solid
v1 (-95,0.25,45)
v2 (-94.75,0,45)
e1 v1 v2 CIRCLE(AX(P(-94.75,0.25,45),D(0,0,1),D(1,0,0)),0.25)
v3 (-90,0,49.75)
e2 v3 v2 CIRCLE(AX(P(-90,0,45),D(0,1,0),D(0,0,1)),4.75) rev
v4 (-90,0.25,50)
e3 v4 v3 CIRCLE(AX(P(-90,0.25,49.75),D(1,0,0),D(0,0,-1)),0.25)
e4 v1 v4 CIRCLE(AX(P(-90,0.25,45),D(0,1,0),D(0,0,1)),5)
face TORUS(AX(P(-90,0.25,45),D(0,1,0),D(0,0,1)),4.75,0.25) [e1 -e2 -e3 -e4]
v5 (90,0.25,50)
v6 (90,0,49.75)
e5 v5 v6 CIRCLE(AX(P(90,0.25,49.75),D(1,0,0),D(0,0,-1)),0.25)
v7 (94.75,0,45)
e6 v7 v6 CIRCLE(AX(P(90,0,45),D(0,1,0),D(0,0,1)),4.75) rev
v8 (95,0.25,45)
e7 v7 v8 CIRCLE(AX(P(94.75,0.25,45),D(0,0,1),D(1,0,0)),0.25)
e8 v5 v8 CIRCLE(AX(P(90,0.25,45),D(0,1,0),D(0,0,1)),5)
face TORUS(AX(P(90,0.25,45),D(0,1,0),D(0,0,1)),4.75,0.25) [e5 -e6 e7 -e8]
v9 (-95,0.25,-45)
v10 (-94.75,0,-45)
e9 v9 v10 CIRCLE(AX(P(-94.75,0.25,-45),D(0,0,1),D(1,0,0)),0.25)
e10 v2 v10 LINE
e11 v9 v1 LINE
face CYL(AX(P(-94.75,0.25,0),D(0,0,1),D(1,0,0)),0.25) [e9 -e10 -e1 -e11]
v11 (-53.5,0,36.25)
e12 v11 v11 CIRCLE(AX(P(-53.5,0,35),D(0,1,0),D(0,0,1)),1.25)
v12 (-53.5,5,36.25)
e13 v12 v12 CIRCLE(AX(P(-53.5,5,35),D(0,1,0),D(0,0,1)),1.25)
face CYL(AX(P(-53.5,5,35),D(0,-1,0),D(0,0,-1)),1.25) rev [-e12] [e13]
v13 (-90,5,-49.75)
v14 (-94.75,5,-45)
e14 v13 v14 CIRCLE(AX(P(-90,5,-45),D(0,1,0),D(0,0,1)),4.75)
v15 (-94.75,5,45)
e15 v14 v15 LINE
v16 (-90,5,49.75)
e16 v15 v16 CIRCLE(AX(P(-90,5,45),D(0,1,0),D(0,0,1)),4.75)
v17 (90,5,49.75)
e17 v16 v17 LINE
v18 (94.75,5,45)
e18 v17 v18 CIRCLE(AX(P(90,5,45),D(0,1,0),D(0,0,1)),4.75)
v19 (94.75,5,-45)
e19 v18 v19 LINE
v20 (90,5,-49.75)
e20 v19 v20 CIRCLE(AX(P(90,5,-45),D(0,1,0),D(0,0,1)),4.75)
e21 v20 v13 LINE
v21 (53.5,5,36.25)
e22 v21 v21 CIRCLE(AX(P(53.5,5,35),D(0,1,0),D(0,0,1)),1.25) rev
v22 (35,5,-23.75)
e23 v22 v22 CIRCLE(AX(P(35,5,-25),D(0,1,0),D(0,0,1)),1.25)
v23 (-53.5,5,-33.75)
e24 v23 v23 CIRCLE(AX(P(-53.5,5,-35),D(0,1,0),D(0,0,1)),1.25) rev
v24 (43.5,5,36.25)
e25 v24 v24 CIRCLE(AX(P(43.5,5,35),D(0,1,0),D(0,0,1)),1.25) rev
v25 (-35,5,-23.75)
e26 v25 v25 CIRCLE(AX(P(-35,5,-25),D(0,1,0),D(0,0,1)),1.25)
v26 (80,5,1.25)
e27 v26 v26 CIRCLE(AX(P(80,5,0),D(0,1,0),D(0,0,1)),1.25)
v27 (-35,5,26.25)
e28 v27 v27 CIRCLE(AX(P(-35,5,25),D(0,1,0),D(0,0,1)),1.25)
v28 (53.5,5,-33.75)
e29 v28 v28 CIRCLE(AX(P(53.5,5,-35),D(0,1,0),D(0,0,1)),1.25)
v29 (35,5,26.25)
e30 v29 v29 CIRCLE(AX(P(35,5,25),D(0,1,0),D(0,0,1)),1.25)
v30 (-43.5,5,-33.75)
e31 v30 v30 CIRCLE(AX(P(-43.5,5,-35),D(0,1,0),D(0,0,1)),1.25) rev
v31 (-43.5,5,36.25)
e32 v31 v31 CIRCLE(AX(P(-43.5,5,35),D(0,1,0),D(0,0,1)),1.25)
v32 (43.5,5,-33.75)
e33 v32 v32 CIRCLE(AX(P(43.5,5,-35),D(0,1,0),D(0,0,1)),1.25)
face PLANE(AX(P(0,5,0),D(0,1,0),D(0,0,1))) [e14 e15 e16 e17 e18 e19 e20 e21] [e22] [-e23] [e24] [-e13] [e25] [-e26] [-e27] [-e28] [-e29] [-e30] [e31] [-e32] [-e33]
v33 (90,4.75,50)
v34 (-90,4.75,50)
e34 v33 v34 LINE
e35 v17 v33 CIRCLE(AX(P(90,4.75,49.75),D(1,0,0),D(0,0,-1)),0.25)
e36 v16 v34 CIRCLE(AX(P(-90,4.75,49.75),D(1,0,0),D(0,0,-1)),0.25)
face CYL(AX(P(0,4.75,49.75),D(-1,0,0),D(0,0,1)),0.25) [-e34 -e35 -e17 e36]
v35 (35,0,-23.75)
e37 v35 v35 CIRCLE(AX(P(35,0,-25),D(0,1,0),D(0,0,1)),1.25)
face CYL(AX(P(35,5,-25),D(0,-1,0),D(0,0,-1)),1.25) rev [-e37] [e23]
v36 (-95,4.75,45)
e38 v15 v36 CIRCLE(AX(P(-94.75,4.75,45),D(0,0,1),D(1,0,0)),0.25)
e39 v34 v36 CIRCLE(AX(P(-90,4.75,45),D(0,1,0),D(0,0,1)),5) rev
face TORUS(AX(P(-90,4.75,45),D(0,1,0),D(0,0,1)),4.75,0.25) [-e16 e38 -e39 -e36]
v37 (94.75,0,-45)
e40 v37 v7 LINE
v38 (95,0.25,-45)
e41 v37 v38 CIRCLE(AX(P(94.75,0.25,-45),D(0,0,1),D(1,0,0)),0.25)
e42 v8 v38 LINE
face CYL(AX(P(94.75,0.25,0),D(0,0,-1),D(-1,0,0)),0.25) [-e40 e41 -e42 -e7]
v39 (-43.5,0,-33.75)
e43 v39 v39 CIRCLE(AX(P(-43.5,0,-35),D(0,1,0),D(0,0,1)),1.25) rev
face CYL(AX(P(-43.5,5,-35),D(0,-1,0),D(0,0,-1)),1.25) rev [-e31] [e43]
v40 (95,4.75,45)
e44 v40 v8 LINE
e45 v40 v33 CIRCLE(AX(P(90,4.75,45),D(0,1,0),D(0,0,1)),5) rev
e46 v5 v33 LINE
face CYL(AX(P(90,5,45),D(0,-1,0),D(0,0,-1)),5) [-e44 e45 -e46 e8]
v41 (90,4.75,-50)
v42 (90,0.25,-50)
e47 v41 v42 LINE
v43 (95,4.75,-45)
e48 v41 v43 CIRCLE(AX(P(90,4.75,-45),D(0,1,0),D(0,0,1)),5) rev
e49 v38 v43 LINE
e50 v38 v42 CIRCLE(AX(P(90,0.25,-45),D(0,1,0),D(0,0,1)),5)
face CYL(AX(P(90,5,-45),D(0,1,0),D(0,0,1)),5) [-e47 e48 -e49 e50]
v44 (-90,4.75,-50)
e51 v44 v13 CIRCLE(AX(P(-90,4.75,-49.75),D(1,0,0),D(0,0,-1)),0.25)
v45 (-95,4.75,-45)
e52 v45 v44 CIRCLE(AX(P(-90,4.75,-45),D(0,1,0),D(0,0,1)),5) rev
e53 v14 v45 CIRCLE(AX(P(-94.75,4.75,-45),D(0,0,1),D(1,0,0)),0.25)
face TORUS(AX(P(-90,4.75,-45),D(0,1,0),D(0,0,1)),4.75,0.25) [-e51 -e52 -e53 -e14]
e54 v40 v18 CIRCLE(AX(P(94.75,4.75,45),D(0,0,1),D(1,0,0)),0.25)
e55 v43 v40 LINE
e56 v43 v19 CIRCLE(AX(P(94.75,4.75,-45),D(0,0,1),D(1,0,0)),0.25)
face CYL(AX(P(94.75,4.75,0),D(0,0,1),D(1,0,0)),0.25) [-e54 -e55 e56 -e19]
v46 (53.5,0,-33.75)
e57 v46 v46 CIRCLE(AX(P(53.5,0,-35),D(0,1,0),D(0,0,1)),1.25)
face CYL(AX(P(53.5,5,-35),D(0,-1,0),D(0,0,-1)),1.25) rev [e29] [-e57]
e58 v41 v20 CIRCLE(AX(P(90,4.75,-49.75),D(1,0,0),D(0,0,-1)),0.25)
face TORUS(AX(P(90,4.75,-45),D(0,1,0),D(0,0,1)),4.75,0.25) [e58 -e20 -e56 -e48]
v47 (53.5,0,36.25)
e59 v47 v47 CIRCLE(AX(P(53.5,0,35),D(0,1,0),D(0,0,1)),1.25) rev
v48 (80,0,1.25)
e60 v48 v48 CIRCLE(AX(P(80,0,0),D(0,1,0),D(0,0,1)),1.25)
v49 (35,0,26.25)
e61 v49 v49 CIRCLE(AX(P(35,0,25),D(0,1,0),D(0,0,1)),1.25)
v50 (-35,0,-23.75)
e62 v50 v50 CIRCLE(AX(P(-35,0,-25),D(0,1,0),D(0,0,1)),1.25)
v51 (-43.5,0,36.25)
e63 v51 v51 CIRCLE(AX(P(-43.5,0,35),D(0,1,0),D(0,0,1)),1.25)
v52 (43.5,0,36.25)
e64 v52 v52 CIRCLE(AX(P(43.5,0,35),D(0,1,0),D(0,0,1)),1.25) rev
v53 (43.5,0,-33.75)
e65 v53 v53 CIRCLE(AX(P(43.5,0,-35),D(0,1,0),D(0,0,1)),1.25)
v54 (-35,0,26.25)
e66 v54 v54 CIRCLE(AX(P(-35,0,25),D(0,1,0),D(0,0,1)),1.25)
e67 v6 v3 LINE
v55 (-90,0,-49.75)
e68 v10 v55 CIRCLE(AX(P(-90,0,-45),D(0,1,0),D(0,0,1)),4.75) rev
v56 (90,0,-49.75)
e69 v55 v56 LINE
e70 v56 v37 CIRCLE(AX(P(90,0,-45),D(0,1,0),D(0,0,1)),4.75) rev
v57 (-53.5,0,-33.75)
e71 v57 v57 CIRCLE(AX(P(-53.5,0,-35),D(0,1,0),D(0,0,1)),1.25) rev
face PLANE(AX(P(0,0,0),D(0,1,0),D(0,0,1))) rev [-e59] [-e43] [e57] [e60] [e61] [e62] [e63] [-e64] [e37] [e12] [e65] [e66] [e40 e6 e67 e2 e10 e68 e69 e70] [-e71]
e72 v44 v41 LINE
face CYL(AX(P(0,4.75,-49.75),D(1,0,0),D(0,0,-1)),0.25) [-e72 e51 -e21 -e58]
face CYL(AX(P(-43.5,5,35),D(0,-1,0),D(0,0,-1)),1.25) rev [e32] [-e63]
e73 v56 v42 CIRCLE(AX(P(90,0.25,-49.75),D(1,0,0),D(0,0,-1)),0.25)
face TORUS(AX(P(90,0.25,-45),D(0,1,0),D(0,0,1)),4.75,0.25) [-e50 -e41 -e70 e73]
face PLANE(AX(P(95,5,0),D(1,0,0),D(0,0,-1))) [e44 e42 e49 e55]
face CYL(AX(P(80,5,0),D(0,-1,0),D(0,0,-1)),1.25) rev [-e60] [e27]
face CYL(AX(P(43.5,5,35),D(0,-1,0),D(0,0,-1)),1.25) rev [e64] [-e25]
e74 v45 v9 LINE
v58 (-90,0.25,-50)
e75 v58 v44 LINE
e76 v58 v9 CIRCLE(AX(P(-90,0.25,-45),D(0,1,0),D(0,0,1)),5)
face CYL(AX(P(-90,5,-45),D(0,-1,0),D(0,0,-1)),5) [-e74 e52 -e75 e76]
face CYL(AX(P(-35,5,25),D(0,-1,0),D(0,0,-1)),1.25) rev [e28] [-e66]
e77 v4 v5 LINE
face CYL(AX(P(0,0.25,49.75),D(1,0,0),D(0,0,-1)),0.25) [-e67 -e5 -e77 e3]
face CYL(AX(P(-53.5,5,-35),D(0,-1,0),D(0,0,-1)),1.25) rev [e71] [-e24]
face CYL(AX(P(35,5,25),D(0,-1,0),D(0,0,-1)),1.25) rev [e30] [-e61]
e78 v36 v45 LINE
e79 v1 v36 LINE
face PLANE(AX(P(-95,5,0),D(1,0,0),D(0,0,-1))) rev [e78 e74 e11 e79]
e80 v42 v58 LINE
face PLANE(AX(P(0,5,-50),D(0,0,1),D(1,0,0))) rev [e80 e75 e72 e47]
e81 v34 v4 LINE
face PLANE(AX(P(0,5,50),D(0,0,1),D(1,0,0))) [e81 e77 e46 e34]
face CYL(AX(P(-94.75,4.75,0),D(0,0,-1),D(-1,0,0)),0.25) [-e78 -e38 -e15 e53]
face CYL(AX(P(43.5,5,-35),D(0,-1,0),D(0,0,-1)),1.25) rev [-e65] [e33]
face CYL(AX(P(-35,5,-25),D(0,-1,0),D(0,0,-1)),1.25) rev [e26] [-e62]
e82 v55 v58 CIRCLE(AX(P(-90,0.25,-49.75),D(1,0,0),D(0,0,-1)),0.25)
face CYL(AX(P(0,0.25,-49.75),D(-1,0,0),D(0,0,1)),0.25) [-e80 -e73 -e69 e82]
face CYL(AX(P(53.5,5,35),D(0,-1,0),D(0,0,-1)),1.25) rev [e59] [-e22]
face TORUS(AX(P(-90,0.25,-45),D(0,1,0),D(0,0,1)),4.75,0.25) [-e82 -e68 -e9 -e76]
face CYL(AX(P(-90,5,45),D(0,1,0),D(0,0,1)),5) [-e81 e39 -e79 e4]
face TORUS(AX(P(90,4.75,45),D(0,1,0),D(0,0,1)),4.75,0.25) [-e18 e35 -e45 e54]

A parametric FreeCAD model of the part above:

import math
import FreeCAD as App
import Part
import Sketcher
from FreeCAD import Vector
Q = App.Units.Quantity


def edges_at(feature, points):
    """Names of the edges that pass closest to the given points."""
    edges = feature.Shape.Edges
    near = lambda p: min(range(len(edges)), key=lambda i: edges[i].distToShape(Part.Vertex(*p))[0])
    return sorted({f"Edge{near(p) + 1}" for p in points})


def add_polygon(sketch, points):
    """Adds a closed chain of lines whose ends are joined by coincident constraints."""
    first, n = sketch.GeometryCount, len(points)
    for a, b in zip(points, points[1:] + points[:1]):
        sketch.addGeometry(Part.LineSegment(App.Vector(*a, 0), App.Vector(*b, 0)), False)
    for i in range(n):
        sketch.addConstraint(Sketcher.Constraint("Coincident", first + i, 2, first + (i + 1) % n, 1))

doc = App.newDocument("Part")
params = doc.addObject("Spreadsheet::Sheet", "Params")
for row, (alias, value) in enumerate([
    ("sketch1_diameter", "2.5 mm"),
    ("sketch1_width", "190 mm"),
    ("sketch1_height", "100 mm"),
    ("sketch1_width2", "67.5 mm"),
    ("sketch1_height2", "47.5 mm"),
    ("pad1_length", "5 mm"),
    ("fillet_radius", "5 mm"),
    ("fillet2_radius", "0.25 mm"),
    ("sketch2_radius", "1.25 mm"),
    ("sketch2_width", "67.5 mm"),
    ("sketch2_height", "47.5 mm"),
    ("pad2_length", "5 mm"),
], start=1):
    params.set(f"A{row}", alias)
    params.set(f"B{row}", "=" + value)
    params.setAlias(f"B{row}", alias)

body = doc.addObject("PartDesign::Body", "Body")

# Sketch on XZ plane
sketch1 = body.newObject("Sketcher::SketchObject", "Sketch")
sketch1.AttachmentSupport = (doc.getObject("XZ_Plane"), [""])
sketch1.MapMode = "FlatFace"
add_polygon(sketch1, [(-95, -50), (-95, 50), (95, 50), (95, -50)])  # lines 0-3
sketch1.addGeometry(Part.Circle(Vector(-53.5, 35, 0), Vector(0, 0, 1), 1.25), False)  # 4
sketch1.addGeometry(Part.Circle(Vector(-43.5, 35, 0), Vector(0, 0, 1), 1.25), False)  # 5
sketch1.addGeometry(Part.Circle(Vector(43.5, 35, 0), Vector(0, 0, 1), 1.25), False)  # 6
sketch1.addGeometry(Part.Circle(Vector(53.5, 35, 0), Vector(0, 0, 1), 1.25), False)  # 7
sketch1.addGeometry(Part.LineSegment(Vector(-35, 23.75, 0), Vector(-35, -23.75, 0)), False)  # 8
sketch1.addGeometry(Part.ArcOfCircle(Part.Circle(Vector(-35, -25, 0), Vector(0, 0, 1), 1.25), math.radians(90), math.radians(360)), False)  # 9
sketch1.addGeometry(Part.LineSegment(Vector(-33.75, -25, 0), Vector(33.75, -25, 0)), False)  # 10
sketch1.addGeometry(Part.ArcOfCircle(Part.Circle(Vector(35, -25, 0), Vector(0, 0, 1), 1.25), math.radians(180), math.radians(360)), False)  # 11
sketch1.addGeometry(Part.ArcOfCircle(Part.Circle(Vector(35, -25, 0), Vector(0, 0, 1), 1.25), math.radians(0), math.radians(90)), False)  # 12
sketch1.addGeometry(Part.LineSegment(Vector(35, -23.75, 0), Vector(35, 23.75, 0)), False)  # 13
sketch1.addGeometry(Part.ArcOfCircle(Part.Circle(Vector(35, 25, 0), Vector(0, 0, 1), 1.25), math.radians(-90), math.radians(0)), False)  # 14
sketch1.addGeometry(Part.ArcOfCircle(Part.Circle(Vector(35, 25, 0), Vector(0, 0, 1), 1.25), math.radians(0), math.radians(180)), False)  # 15
sketch1.addGeometry(Part.LineSegment(Vector(33.75, 25, 0), Vector(-33.75, 25, 0)), False)  # 16
sketch1.addGeometry(Part.ArcOfCircle(Part.Circle(Vector(-35, 25, 0), Vector(0, 0, 1), 1.25), math.radians(0), math.radians(270)), False)  # 17
sketch1.addGeometry(Part.Circle(Vector(-53.5, -35, 0), Vector(0, 0, 1), 1.25), False)  # 18
sketch1.addGeometry(Part.Circle(Vector(-43.5, -35, 0), Vector(0, 0, 1), 1.25), False)  # 19
sketch1.addGeometry(Part.Circle(Vector(80, 0, 0), Vector(0, 0, 1), 1.25), False)  # 20
sketch1.addGeometry(Part.Circle(Vector(43.5, -35, 0), Vector(0, 0, 1), 1.25), False)  # 21
sketch1.addGeometry(Part.Circle(Vector(53.5, -35, 0), Vector(0, 0, 1), 1.25), False)  # 22
sketch1.addConstraint([
    Sketcher.Constraint("Coincident", 8, 2, 9, 1),
    Sketcher.Constraint("Coincident", 9, 2, 10, 1),
    Sketcher.Constraint("Coincident", 10, 2, 11, 1),
    Sketcher.Constraint("Tangent", 11, 2, 12, 1),
    Sketcher.Constraint("Coincident", 12, 2, 13, 1),
    Sketcher.Constraint("Coincident", 13, 2, 14, 1),
    Sketcher.Constraint("Tangent", 14, 2, 15, 1),
    Sketcher.Constraint("Coincident", 15, 2, 16, 1),
    Sketcher.Constraint("Coincident", 16, 2, 17, 1),
    Sketcher.Constraint("Coincident", 17, 2, 8, 1),
    Sketcher.Constraint("Vertical", 0),
    Sketcher.Constraint("Horizontal", 1),
    Sketcher.Constraint("Vertical", 2),
    Sketcher.Constraint("Horizontal", 3),
    Sketcher.Constraint("Vertical", 8),
    Sketcher.Constraint("Horizontal", 10),
    Sketcher.Constraint("Vertical", 13),
    Sketcher.Constraint("Horizontal", 16),
    Sketcher.Constraint("Equal", 4, 5),
    Sketcher.Constraint("Equal", 5, 6),
    Sketcher.Constraint("Equal", 6, 7),
    Sketcher.Constraint("Equal", 7, 9),
    Sketcher.Constraint("Equal", 9, 11),
    Sketcher.Constraint("Equal", 11, 12),
    Sketcher.Constraint("Equal", 12, 14),
    Sketcher.Constraint("Equal", 14, 15),
    Sketcher.Constraint("Equal", 15, 17),
    Sketcher.Constraint("Equal", 17, 18),
    Sketcher.Constraint("Equal", 18, 19),
    Sketcher.Constraint("Equal", 19, 20),
    Sketcher.Constraint("Equal", 20, 21),
    Sketcher.Constraint("Equal", 21, 22),
    Sketcher.Constraint("Symmetric", 9, 3, 14, 3, -1, 1),
    Sketcher.Constraint("Symmetric", 11, 3, 17, 3, -1, 1),
    Sketcher.Constraint("Symmetric", 7, 3, 18, 3, -1, 1),
    Sketcher.Constraint("Symmetric", 6, 3, 19, 3, -1, 1),
    Sketcher.Constraint("Symmetric", 5, 3, 21, 3, -1, 1),
    Sketcher.Constraint("Symmetric", 4, 3, 22, 3, -1, 1),
    Sketcher.Constraint("Symmetric", 0, 2, 2, 2, -1, 1),
    Sketcher.Constraint("Symmetric", 5, 3, 6, 3, -2),
    Sketcher.Constraint("Symmetric", 4, 3, 7, 3, -2),
    Sketcher.Constraint("Symmetric", 9, 3, 11, 3, -2),
    Sketcher.Constraint("PointOnObject", 20, 3, -1),
    Sketcher.Constraint("Horizontal", 4, 3, 5, 3),
    Sketcher.Constraint("Horizontal", 12, 3, 9, 2),
    Sketcher.Constraint("Horizontal", 10, 2, 11, 2),
    Sketcher.Constraint("Horizontal", 17, 3, 14, 2),
    Sketcher.Constraint("Horizontal", 14, 2, 15, 2),
    Sketcher.Constraint("Vertical", 17, 3, 8, 2),
    Sketcher.Constraint("Vertical", 15, 3, 12, 2),
    Sketcher.Constraint("Diameter", 4, Q("2.5 mm")),
    Sketcher.Constraint("DistanceX", 1, 1, 1, 2, Q("190 mm")),
    Sketcher.Constraint("DistanceY", 0, 1, 0, 2, Q("100 mm")),
    Sketcher.Constraint("DistanceX", 10, 1, 10, 2, Q("67.5 mm")),
    Sketcher.Constraint("DistanceY", 8, 2, 8, 1, Q("47.5 mm")),
    Sketcher.Constraint("DistanceY", -1, 1, 4, 3, Q("35 mm")),
    Sketcher.Constraint("DistanceX", -1, 1, 20, 3, Q("80 mm")),
    Sketcher.Constraint("DistanceX", 4, 3, 5, 3, Q("10 mm")),
    Sketcher.Constraint("DistanceX", 5, 3, 6, 3, Q("87 mm")),
])
sketch1.setExpression("Constraints[54]", "Params.sketch1_diameter")
sketch1.setExpression("Constraints[55]", "Params.sketch1_width")
sketch1.setExpression("Constraints[56]", "Params.sketch1_height")
sketch1.setExpression("Constraints[57]", "Params.sketch1_width2")
sketch1.setExpression("Constraints[58]", "Params.sketch1_height2")
pad1 = body.newObject("PartDesign::Pad", "Pad")
pad1.Profile = sketch1
pad1.setExpression("Length", "Params.pad1_length")
pad1.Reversed = True
doc.recompute()

fillet = body.newObject("PartDesign::Fillet", "Fillet")
fillet.Base = (pad1, edges_at(pad1, [
    (95, 2.5, -50),
    (95, 2.5, 50),
    (-95, 2.5, 50),
    (-95, 2.5, -50),
]))
fillet.setExpression("Radius", "Params.fillet_radius")
doc.recompute()

fillet2 = body.newObject("PartDesign::Fillet", "Fillet001")
fillet2.Base = (fillet, edges_at(fillet, [
    (0, 0, -50),
    (0, 5, -50),
    (95, 0, 0),
    (0, 0, 50),
    (-95, 0, 0),
    (-93.536, 0, 48.536),
    (-93.536, 0, -48.536),
    (93.536, 0, 48.536),
    (93.536, 0, -48.536),
    (95, 5, 0),
    (-95, 5, 0),
    (0, 5, 50),
    (-93.536, 5, 48.536),
    (-93.536, 5, -48.536),
    (93.536, 5, 48.536),
    (93.536, 5, -48.536),
]))
fillet2.setExpression("Radius", "Params.fillet2_radius")

# Sketch on XZ plane
sketch2 = body.newObject("Sketcher::SketchObject", "Sketch001")
sketch2.AttachmentSupport = (doc.getObject("XZ_Plane"), [""])
sketch2.MapMode = "FlatFace"
sketch2.addGeometry([
    Part.LineSegment(Vector(33.75, -25, 0), Vector(-33.75, -25, 0)),  # 0
    Part.ArcOfCircle(Part.Circle(Vector(-35, -25, 0), Vector(0, 0, 1), 1.25), math.radians(0), math.radians(90)),  # 1
    Part.LineSegment(Vector(-35, -23.75, 0), Vector(-35, 23.75, 0)),  # 2
    Part.ArcOfCircle(Part.Circle(Vector(-35, 25, 0), Vector(0, 0, 1), 1.25), math.radians(-90), math.radians(0)),  # 3
    Part.LineSegment(Vector(-33.75, 25, 0), Vector(33.75, 25, 0)),  # 4
    Part.ArcOfCircle(Part.Circle(Vector(35, 25, 0), Vector(0, 0, 1), 1.25), math.radians(-180), math.radians(-90)),  # 5
    Part.LineSegment(Vector(35, 23.75, 0), Vector(35, -23.75, 0)),  # 6
    Part.ArcOfCircle(Part.Circle(Vector(35, -25, 0), Vector(0, 0, 1), 1.25), math.radians(90), math.radians(180)),  # 7
], False)
sketch2.addConstraint([
    Sketcher.Constraint("Coincident", 0, 2, 1, 1),
    Sketcher.Constraint("Coincident", 1, 2, 2, 1),
    Sketcher.Constraint("Coincident", 2, 2, 3, 1),
    Sketcher.Constraint("Coincident", 3, 2, 4, 1),
    Sketcher.Constraint("Coincident", 4, 2, 5, 1),
    Sketcher.Constraint("Coincident", 5, 2, 6, 1),
    Sketcher.Constraint("Coincident", 6, 2, 7, 1),
    Sketcher.Constraint("Coincident", 7, 2, 0, 1),
    Sketcher.Constraint("Horizontal", 0),
    Sketcher.Constraint("Vertical", 2),
    Sketcher.Constraint("Horizontal", 4),
    Sketcher.Constraint("Vertical", 6),
    Sketcher.Constraint("Equal", 1, 3),
    Sketcher.Constraint("Equal", 3, 5),
    Sketcher.Constraint("Equal", 5, 7),
    Sketcher.Constraint("Symmetric", 1, 3, 5, 3, -1, 1),
    Sketcher.Constraint("Symmetric", 3, 3, 7, 3, -1, 1),
    Sketcher.Constraint("Symmetric", 3, 3, 5, 3, -2),
    Sketcher.Constraint("Horizontal", 7, 3, 0, 2),
    Sketcher.Constraint("Horizontal", 5, 3, 3, 2),
    Sketcher.Constraint("Vertical", 3, 3, 1, 2),
    Sketcher.Constraint("Vertical", 7, 3, 5, 2),
    Sketcher.Constraint("Radius", 1, Q("1.25 mm")),
    Sketcher.Constraint("DistanceX", 0, 2, 0, 1, Q("67.5 mm")),
    Sketcher.Constraint("DistanceY", 2, 1, 2, 2, Q("47.5 mm")),
])
sketch2.setExpression("Constraints[22]", "Params.sketch2_radius")
sketch2.setExpression("Constraints[23]", "Params.sketch2_width")
sketch2.setExpression("Constraints[24]", "Params.sketch2_height")
pad2 = body.newObject("PartDesign::Pad", "Pad001")
pad2.Profile = sketch2
pad2.setExpression("Length", "Params.pad2_length")
pad2.Reversed = True

doc.recompute()
